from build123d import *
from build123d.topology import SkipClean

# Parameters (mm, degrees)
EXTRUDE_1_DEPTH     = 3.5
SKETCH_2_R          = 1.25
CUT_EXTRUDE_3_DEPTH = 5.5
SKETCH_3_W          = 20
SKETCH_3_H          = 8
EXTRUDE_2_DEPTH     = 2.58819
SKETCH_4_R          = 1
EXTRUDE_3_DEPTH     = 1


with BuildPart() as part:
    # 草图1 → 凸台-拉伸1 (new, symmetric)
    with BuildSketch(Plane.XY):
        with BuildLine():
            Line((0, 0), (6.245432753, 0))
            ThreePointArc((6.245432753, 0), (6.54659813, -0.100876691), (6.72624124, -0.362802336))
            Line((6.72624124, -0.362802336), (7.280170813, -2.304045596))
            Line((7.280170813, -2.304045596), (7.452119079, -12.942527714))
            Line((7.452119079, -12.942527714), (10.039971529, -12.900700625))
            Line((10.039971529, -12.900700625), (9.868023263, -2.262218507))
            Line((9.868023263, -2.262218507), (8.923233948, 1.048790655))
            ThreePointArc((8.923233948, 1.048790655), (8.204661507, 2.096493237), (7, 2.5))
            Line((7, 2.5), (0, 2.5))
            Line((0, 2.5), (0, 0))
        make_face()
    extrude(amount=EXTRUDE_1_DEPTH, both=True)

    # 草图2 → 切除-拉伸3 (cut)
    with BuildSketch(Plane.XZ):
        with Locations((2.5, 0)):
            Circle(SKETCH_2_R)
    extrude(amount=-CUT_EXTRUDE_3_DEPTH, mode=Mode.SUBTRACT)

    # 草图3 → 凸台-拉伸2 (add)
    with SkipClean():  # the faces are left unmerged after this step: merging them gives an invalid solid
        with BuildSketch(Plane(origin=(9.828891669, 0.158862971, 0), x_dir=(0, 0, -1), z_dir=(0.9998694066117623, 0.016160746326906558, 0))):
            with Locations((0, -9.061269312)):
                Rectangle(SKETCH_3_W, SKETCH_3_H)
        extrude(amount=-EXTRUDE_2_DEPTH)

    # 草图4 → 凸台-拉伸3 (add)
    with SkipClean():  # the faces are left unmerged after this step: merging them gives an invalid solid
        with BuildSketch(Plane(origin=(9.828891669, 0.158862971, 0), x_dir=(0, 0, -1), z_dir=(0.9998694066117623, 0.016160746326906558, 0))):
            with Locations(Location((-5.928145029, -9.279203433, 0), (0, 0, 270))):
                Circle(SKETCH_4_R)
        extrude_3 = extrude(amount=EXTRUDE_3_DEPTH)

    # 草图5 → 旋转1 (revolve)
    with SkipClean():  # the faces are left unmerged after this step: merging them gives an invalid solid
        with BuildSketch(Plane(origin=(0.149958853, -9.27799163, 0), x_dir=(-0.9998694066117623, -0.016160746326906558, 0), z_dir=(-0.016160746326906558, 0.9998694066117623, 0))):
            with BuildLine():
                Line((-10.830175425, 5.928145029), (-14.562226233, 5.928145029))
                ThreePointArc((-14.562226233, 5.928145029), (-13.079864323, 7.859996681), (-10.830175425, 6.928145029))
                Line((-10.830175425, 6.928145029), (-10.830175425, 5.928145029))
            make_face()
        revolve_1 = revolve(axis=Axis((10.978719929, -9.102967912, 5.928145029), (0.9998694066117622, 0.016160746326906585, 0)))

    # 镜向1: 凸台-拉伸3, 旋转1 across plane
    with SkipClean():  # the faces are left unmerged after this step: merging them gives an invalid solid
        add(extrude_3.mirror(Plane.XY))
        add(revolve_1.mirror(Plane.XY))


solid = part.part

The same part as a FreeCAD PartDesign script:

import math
import FreeCAD as App
import Part
import Sketcher


def add_polygon(sketch, points):
    """Adds a closed chain of lines whose ends are joined by coincident constraints."""
    first, n = sketch.GeometryCount, len(points)
    for a, b in zip(points, points[1:] + points[:1]):
        sketch.addGeometry(Part.LineSegment(App.Vector(*a, 0), App.Vector(*b, 0)), False)
    for i in range(n):
        sketch.addConstraint(Sketcher.Constraint("Coincident", first + i, 2, first + (i + 1) % n, 1))

doc = App.newDocument("Part")
body = doc.addObject("PartDesign::Body", "Body")

sketch1 = body.newObject("Sketcher::SketchObject", "Sketch")
sketch1.AttachmentSupport = (doc.getObject("XY_Plane"), [""])
sketch1.MapMode = "FlatFace"
sketch1.addGeometry([
    Part.LineSegment(App.Vector(0, 0, 0), App.Vector(6.2, 0, 0)),
    Part.ArcOfCircle(Part.Circle(App.Vector(6.2, -0.5, 0), App.Vector(0, 0, 1), 0.5), math.radians(16), math.radians(90)),
    Part.LineSegment(App.Vector(6.7, -0.4, 0), App.Vector(7.3, -2.3, 0)),
    Part.LineSegment(App.Vector(7.3, -2.3, 0), App.Vector(7.5, -12.9, 0)),
    Part.LineSegment(App.Vector(7.5, -12.9, 0), App.Vector(10, -12.9, 0)),
    Part.LineSegment(App.Vector(10, -12.9, 0), App.Vector(9.9, -2.3, 0)),
    Part.LineSegment(App.Vector(9.9, -2.3, 0), App.Vector(8.9, 1, 0)),
    Part.ArcOfCircle(Part.Circle(App.Vector(7, 0.5, 0), App.Vector(0, 0, 1), 2), math.radians(16), math.radians(90)),
    Part.LineSegment(App.Vector(7, 2.5, 0), App.Vector(0, 2.5, 0)),
    Part.LineSegment(App.Vector(0, 2.5, 0), App.Vector(0, 0, 0)),
], False)
sketch1.addConstraint([
    Sketcher.Constraint("Tangent", 0, 2, 1, 2),
    Sketcher.Constraint("Tangent", 1, 1, 2, 1),
    Sketcher.Constraint("Coincident", 2, 2, 3, 1),
    Sketcher.Constraint("Coincident", 3, 2, 4, 1),
    Sketcher.Constraint("Coincident", 4, 2, 5, 1),
    Sketcher.Constraint("Coincident", 5, 2, 6, 1),
    Sketcher.Constraint("Tangent", 6, 2, 7, 1),
    Sketcher.Constraint("Tangent", 7, 2, 8, 1),
    Sketcher.Constraint("Coincident", 8, 2, 9, 1),
    Sketcher.Constraint("Coincident", 9, 2, 0, 1),
    Sketcher.Constraint("Horizontal", 0),
    Sketcher.Constraint("Horizontal", 8),
    Sketcher.Constraint("Vertical", 9),
    Sketcher.Constraint("Coincident", 9, 2, -1, 1),
    Sketcher.Constraint("Perpendicular", 3, 4),
    Sketcher.Constraint("Perpendicular", 4, 5),
    Sketcher.Constraint("Parallel", 2, 6),
    Sketcher.Constraint("Equal", 3, 5),
    Sketcher.Constraint("Radius", 7, 2.0),
    Sketcher.Constraint("Radius", 1, 0.5),
    Sketcher.Constraint("DistanceX", 8, 2, 8, 1, 7.0),
    Sketcher.Constraint("DistanceY", 9, 2, 9, 1, 2.5),
    Sketcher.Constraint("DistanceY", 4, 2, -1, 1, 12.900701),
    Sketcher.Constraint("DistanceX", 2, 2, 4, 2, 2.759801),
    Sketcher.Constraint("DistanceY", 4, 2, 1, 1, 12.537898),
    Sketcher.Constraint("DistanceX", 0, 2, 6, 2, 2.677801),
    Sketcher.Constraint("Distance", 2, 2.018728),
])
pad1 = body.newObject("PartDesign::Pad", "Pad")
pad1.Profile = sketch1
pad1.Length = 7
pad1.Midplane = True

sketch2 = body.newObject("Sketcher::SketchObject", "Sketch001")
sketch2.AttachmentSupport = (doc.getObject("XZ_Plane"), [""])
sketch2.MapMode = "FlatFace"
sketch2.addGeometry(Part.Circle(App.Vector(2.5, 0, 0), App.Vector(0, 0, 1), 1.2), False)
sketch2.addConstraint([
    Sketcher.Constraint("PointOnObject", 0, 3, -1),
    Sketcher.Constraint("Diameter", 0, 2.5),
    Sketcher.Constraint("DistanceX", -1, 1, 0, 3, 2.5),
])
pocket1 = body.newObject("PartDesign::Pocket", "Pocket")
pocket1.Profile = sketch2
pocket1.Length = 5.5

sketch3 = body.newObject("Sketcher::SketchObject", "Sketch002")
sketch3.Placement = App.Placement(App.Vector(9.828892, 0.158863, 0), App.Rotation(App.Vector(0, 0, -1), App.Vector(-0.016160746, 0.999869407, 0), App.Vector(0.999869407, 0.016160746, 0), "ZXY"))
add_polygon(sketch3, [(-10, -5), (-10, -13), (10, -13), (10, -5)])
sketch3.addConstraint([
    Sketcher.Constraint("Vertical", 0),
    Sketcher.Constraint("Horizontal", 1),
    Sketcher.Constraint("Vertical", 2),
    Sketcher.Constraint("Horizontal", 3),
    Sketcher.Constraint("DistanceX", 1, 1, 1, 2, 20.0),
    Sketcher.Constraint("DistanceY", 0, 2, 0, 1, 8.0),
    Sketcher.Constraint("DistanceX", 0, 2, -1, 1, 10.0),
    Sketcher.Constraint("DistanceY", 0, 2, -1, 1, 13.061269),
])
pad2 = body.newObject("PartDesign::Pad", "Pad001")
pad2.Profile = sketch3
pad2.Length = 2.58819
pad2.Reversed = True

sketch4 = body.newObject("Sketcher::SketchObject", "Sketch003")
sketch4.Placement = App.Placement(App.Vector(9.828892, 0.158863, 0), App.Rotation(App.Vector(0, 0, -1), App.Vector(-0.016160746, 0.999869407, 0), App.Vector(0.999869407, 0.016160746, 0), "ZXY"))
sketch4.addGeometry(Part.Circle(App.Vector(-5.9, -9.3, 0), App.Vector(0, 0, 1), 1), False)
sketch4.addConstraint([
    Sketcher.Constraint("Diameter", 0, 2.0),
    Sketcher.Constraint("DistanceX", 0, 3, -1, 1, 5.928145),
    Sketcher.Constraint("DistanceY", 0, 3, -1, 1, 9.279203),
])
pad3 = body.newObject("PartDesign::Pad", "Pad002")
pad3.Profile = sketch4
pad3.Length = 1

sketch5 = body.newObject("Sketcher::SketchObject", "Sketch004")
sketch5.Placement = App.Placement(App.Vector(0.149959, -9.277992, 0), App.Rotation(App.Vector(-0.999869407, -0.016160746, 0), App.Vector(0, 0, 1.000000001), App.Vector(-0.016160746, 0.999869407, 0), "ZXY"))
sketch5.addGeometry([
    Part.LineSegment(App.Vector(-14.6, 5.9, 0), App.Vector(-10.8, 5.9, 0)),
    Part.LineSegment(App.Vector(-10.8, 5.9, 0), App.Vector(-10.8, 6.9, 0)),
    Part.ArcOfCircle(Part.Circle(App.Vector(-12.6, 5.9, 0), App.Vector(0, 0, 1), 2), math.radians(30), math.radians(180)),
], False)
sketch5.addGeometry(Part.LineSegment(App.Vector(-10.8, 5.9, 0), App.Vector(-14.6, 5.9, 0)), True)
sketch5.addConstraint([
    Sketcher.Constraint("Coincident", 0, 2, 1, 1),
    Sketcher.Constraint("Coincident", 1, 2, 2, 1),
    Sketcher.Constraint("Coincident", 2, 2, 0, 1),
    Sketcher.Constraint("Horizontal", 0),
    Sketcher.Constraint("Vertical", 1),
    Sketcher.Constraint("Horizontal", 3),
    Sketcher.Constraint("Coincident", 3, 1, 0, 2),
    Sketcher.Constraint("Horizontal", 2, 3, 0, 2),
    Sketcher.Constraint("Equal", 0, 3),
    Sketcher.Constraint("Radius", 2, 2.0),
    Sketcher.Constraint("DistanceY", 1, 1, 1, 2, 1.0),
    Sketcher.Constraint("DistanceX", 2, 3, -1, 1, 12.562226),
    Sketcher.Constraint("DistanceY", -1, 1, 2, 3, 5.928145),
])
revolution = body.newObject("PartDesign::Revolution", "Revolution")
revolution.Profile = sketch5
revolution.ReferenceAxis = (sketch5, ["Axis0"])
revolution.Angle = 360
doc.recompute()

mirrored = body.newObject("PartDesign::Mirrored", "Mirrored")
mirrored.Originals = [pad3, revolution]
mirrored.MirrorPlane = (doc.getObject("XY_Plane"), [""])
body.Tip = mirrored

doc.recompute()
